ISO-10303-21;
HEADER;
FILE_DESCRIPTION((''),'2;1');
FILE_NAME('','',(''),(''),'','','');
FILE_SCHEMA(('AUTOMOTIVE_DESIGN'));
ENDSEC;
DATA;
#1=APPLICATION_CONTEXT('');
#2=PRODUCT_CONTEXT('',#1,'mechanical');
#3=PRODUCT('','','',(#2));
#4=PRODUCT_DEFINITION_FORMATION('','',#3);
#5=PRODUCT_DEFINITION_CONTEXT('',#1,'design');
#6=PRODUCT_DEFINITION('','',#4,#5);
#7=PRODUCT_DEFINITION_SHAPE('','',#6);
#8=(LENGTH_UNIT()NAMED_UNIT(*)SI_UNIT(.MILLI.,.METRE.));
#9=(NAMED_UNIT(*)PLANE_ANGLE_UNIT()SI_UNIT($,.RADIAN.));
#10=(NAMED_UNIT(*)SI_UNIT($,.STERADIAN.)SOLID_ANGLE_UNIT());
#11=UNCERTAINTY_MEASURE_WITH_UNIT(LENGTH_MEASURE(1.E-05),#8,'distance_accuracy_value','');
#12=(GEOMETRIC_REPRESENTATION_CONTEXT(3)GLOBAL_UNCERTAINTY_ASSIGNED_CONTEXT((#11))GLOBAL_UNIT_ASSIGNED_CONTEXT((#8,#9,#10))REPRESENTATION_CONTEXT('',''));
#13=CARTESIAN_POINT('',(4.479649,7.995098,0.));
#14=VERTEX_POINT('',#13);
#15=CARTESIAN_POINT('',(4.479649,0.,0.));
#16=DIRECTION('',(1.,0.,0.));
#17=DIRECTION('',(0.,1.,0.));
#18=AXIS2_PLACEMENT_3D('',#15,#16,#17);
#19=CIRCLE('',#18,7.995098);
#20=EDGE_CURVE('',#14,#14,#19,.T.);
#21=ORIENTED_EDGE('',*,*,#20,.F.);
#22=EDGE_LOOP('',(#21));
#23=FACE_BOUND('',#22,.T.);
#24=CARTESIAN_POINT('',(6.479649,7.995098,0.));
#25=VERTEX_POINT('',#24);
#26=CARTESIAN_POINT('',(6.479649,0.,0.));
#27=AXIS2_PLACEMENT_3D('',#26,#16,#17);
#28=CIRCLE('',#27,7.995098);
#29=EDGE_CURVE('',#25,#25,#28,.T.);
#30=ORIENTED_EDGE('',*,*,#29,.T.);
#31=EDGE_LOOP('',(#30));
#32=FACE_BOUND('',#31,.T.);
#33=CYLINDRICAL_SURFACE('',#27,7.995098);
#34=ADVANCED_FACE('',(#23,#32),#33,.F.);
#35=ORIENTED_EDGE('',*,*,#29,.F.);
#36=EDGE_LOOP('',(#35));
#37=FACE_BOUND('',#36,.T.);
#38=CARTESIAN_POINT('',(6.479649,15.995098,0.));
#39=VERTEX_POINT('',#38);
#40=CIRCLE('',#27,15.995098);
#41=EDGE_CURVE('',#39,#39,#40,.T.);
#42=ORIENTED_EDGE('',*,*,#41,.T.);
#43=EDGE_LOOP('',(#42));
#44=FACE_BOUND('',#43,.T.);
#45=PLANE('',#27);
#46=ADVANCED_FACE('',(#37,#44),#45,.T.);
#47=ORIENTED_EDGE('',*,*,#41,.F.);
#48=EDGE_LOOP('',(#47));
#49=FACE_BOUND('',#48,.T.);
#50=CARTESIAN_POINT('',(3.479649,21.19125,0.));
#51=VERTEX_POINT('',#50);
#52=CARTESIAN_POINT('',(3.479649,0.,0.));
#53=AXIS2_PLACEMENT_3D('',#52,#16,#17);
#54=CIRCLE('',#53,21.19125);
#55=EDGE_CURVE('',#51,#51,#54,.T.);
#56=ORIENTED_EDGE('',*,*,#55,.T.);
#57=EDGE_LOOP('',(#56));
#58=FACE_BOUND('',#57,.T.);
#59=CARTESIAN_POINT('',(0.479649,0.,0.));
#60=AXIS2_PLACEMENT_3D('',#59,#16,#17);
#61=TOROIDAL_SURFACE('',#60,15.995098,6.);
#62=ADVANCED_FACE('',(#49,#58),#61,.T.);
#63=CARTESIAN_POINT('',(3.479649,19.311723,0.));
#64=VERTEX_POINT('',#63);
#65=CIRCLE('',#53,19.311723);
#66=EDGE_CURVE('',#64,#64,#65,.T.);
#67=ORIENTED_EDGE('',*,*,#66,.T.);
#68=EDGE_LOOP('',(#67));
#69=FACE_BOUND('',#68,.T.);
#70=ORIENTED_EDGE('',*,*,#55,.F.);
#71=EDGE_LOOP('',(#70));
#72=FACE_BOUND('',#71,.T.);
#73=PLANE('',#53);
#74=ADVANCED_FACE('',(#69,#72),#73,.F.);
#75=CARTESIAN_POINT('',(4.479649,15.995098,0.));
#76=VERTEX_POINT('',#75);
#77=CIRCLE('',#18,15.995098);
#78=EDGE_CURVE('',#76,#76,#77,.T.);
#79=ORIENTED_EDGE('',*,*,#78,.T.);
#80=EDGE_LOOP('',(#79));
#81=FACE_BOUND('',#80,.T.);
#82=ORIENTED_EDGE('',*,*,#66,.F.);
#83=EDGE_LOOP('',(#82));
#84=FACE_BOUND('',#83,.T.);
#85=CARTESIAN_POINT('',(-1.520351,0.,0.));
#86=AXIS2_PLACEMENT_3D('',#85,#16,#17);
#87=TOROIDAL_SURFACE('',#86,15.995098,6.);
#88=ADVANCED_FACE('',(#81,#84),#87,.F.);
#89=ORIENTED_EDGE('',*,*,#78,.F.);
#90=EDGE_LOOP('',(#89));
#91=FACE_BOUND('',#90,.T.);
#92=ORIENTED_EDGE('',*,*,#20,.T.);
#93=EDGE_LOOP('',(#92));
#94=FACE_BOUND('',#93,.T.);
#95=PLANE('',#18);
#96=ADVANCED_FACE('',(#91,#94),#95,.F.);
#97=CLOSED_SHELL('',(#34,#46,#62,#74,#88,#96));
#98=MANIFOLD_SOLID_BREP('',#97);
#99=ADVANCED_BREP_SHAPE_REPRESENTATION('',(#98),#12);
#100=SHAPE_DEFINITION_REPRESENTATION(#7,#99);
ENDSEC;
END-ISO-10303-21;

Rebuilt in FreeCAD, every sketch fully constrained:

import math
import FreeCAD as App
import Part
import Sketcher
Q = App.Units.Quantity

doc = App.newDocument("Part")
params = doc.addObject("Spreadsheet::Sheet", "Params")
for row, (alias, value) in enumerate([
    ("sketch1_radius", "6 mm"),
    ("sketch1_width", "2 mm"),
    ("sketch1_height", "8 mm"),
    ("sketch1_width2", "3 mm"),
    ("revolution_angle", "360 deg"),
], start=1):
    params.set(f"A{row}", alias)
    params.set(f"B{row}", "=" + value)
    params.setAlias(f"B{row}", alias)

body = doc.addObject("PartDesign::Body", "Body")

sketch1 = doc.addObject("Sketcher::SketchObject", "Sketch")
body.addObject(sketch1)
sketch1.AttachmentSupport = (doc.XY_Plane, [""])
sketch1.MapMode = "FlatFace"
sketch1.addGeometry(Part.LineSegment(App.Vector(4.5, 8, 0), App.Vector(6.5, 8, 0)), False)
sketch1.addGeometry(Part.LineSegment(App.Vector(6.5, 8, 0), App.Vector(6.5, 16, 0)), False)
sketch1.addGeometry(Part.ArcOfCircle(Part.Circle(App.Vector(0.5, 16, 0), App.Vector(0, 0, 1), 6), math.radians(0), math.radians(60)), False)
sketch1.addGeometry(Part.LineSegment(App.Vector(3.5, 21.2, 0), App.Vector(3.5, 19.3, 0)), False)
sketch1.addGeometry(Part.ArcOfCircle(Part.Circle(App.Vector(-1.5, 16, 0), App.Vector(0, 0, 1), 6), math.radians(0), math.radians(34)), False)
sketch1.addGeometry(Part.LineSegment(App.Vector(4.5, 16, 0), App.Vector(4.5, 8, 0)), False)
sketch1.addConstraint(Sketcher.Constraint("Coincident", 0, 2, 1, 1))
sketch1.addConstraint(Sketcher.Constraint("Tangent", 1, 2, 2, 1))
sketch1.addConstraint(Sketcher.Constraint("Coincident", 2, 2, 3, 1))
sketch1.addConstraint(Sketcher.Constraint("Coincident", 3, 2, 4, 2))
sketch1.addConstraint(Sketcher.Constraint("Tangent", 4, 1, 5, 1))
sketch1.addConstraint(Sketcher.Constraint("Coincident", 5, 2, 0, 1))
sketch1.addConstraint(Sketcher.Constraint("Horizontal", 0))
sketch1.addConstraint(Sketcher.Constraint("Vertical", 1))
sketch1.addConstraint(Sketcher.Constraint("Vertical", 3))
sketch1.addConstraint(Sketcher.Constraint("Vertical", 5))
sketch1.addConstraint(Sketcher.Constraint("Equal", 2, 4))
sketch1.addConstraint(Sketcher.Constraint("Horizontal", 2, 3, 4, 3))
sketch1.addConstraint(Sketcher.Constraint("Radius", 2, Q("6 mm")))
sketch1.addConstraint(Sketcher.Constraint("DistanceX", 0, 1, 0, 2, Q("2 mm")))
sketch1.addConstraint(Sketcher.Constraint("DistanceY", 1, 1, 1, 2, Q("8 mm")))
sketch1.addConstraint(Sketcher.Constraint("DistanceX", 2, 3, 2, 2, Q("3 mm")))
sketch1.addConstraint(Sketcher.Constraint("DistanceX", -1, 1, 2, 3, Q("0.479649 mm")))
sketch1.addConstraint(Sketcher.Constraint("DistanceY", -1, 1, 2, 2, Q("21.19125 mm")))
sketch1.setExpression("Constraints[12]", "Params.sketch1_radius")
sketch1.setExpression("Constraints[13]", "Params.sketch1_width")
sketch1.setExpression("Constraints[14]", "Params.sketch1_height")
sketch1.setExpression("Constraints[15]", "Params.sketch1_width2")
revolution = doc.addObject("PartDesign::Revolution", "Revolution")
body.addObject(revolution)
revolution.Profile = sketch1
revolution.ReferenceAxis = (sketch1, ["H_Axis"])
revolution.setExpression("Angle", "Params.revolution_angle")

doc.recompute()
